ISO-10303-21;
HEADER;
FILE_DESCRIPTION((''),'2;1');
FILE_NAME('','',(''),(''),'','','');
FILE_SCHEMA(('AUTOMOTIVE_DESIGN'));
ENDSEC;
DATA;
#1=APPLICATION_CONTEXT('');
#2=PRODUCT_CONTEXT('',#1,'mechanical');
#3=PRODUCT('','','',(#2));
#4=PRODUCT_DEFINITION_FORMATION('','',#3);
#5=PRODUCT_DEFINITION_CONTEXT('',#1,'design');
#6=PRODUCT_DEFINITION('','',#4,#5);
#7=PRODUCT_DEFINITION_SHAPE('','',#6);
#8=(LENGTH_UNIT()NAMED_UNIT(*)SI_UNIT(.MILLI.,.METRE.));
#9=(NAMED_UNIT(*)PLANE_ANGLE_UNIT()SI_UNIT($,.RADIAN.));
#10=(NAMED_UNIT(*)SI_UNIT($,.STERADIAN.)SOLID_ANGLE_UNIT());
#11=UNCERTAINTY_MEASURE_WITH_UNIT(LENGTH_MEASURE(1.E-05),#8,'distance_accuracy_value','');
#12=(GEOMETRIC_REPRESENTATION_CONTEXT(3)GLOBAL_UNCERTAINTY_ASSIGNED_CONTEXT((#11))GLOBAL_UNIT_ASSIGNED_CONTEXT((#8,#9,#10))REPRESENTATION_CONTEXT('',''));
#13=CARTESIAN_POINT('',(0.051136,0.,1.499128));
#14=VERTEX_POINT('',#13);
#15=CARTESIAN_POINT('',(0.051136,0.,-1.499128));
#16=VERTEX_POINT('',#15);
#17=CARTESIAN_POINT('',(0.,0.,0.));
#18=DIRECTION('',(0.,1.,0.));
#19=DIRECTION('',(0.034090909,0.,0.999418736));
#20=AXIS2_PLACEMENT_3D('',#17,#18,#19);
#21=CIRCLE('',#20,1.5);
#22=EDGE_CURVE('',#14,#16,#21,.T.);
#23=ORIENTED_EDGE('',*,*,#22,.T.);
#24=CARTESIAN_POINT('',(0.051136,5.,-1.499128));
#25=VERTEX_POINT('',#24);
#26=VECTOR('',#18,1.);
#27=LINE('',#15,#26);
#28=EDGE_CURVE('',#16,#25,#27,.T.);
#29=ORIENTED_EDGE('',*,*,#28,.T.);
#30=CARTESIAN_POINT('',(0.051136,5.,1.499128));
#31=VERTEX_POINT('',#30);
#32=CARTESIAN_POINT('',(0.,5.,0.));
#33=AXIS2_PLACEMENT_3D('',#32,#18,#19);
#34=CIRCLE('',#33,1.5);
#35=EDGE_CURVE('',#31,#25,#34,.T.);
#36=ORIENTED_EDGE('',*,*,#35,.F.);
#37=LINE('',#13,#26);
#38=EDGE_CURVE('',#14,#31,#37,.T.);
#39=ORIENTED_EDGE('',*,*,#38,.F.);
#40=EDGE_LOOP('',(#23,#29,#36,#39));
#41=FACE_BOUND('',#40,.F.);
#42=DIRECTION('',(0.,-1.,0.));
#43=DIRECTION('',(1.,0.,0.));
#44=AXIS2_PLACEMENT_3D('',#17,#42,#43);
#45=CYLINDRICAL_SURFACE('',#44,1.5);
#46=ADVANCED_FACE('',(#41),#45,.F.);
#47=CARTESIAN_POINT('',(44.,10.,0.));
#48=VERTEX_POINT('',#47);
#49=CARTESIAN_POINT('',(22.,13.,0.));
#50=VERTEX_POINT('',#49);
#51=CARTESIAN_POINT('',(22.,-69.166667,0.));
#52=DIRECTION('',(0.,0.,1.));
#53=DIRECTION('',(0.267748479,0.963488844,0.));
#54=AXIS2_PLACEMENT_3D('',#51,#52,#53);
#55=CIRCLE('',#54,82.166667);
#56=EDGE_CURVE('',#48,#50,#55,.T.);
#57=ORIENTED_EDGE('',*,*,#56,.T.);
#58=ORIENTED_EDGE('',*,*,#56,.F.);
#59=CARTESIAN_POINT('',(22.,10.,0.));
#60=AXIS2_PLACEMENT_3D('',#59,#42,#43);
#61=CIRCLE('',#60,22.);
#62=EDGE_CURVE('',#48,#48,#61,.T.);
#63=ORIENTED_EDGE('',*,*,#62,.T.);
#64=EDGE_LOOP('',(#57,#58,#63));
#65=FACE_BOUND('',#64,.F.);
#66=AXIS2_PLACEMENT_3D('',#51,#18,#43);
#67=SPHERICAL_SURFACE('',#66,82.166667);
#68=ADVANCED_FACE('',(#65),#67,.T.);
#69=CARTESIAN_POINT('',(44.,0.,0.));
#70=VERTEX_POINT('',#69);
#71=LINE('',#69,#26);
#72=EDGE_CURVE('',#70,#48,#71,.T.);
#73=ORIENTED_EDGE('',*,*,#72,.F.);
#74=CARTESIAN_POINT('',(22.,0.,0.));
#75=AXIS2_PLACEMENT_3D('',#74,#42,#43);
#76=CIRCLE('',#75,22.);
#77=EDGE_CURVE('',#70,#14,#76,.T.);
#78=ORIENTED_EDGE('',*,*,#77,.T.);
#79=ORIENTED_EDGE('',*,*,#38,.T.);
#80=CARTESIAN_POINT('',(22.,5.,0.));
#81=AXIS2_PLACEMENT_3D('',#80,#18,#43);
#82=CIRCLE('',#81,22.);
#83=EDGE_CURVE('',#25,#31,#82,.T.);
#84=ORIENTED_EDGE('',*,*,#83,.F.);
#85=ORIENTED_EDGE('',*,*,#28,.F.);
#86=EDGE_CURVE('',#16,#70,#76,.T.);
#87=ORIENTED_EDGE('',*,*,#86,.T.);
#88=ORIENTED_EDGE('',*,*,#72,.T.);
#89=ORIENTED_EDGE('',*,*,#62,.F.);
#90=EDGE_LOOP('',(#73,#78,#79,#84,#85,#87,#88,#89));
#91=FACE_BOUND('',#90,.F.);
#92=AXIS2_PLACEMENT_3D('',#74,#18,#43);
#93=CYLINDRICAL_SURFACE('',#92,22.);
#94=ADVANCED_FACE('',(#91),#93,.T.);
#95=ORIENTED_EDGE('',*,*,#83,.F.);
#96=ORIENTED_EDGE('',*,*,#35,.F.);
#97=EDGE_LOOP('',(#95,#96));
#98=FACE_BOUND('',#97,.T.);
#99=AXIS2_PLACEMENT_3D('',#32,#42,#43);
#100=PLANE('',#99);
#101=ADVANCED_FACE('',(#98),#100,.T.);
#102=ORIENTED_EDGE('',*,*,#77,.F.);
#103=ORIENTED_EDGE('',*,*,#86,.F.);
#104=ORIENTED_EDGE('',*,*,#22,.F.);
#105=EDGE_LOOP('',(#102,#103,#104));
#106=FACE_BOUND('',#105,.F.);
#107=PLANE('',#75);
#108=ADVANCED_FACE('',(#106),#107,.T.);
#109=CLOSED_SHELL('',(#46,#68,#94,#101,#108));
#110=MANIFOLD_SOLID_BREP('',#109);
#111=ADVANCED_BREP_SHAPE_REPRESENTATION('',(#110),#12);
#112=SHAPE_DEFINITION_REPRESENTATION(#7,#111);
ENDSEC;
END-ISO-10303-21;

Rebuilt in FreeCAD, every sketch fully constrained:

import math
import FreeCAD as App
import Part
import Sketcher
from FreeCAD import Vector

doc = App.newDocument("Part")
body = doc.addObject("PartDesign::Body", "Body")

# Sketch on XY plane
sketch1 = body.newObject("Sketcher::SketchObject", "Sketch")
sketch1.AttachmentSupport = (doc.getObject("XY_Plane"), [""])
sketch1.MapMode = "FlatFace"
sketch1.addGeometry(Part.LineSegment(Vector(0, 0, 0), Vector(22, 0, 0)), False)
sketch1.addGeometry(Part.LineSegment(Vector(22, 0, 0), Vector(22, 13, 0)), False)
sketch1.addGeometry(Part.ArcOfCircle(Part.Circle(Vector(22, -69, 0), Vector(0, 0, 1), 82), math.radians(90), math.radians(105.53)), False)
sketch1.addGeometry(Part.LineSegment(Vector(0, 10, 0), Vector(0, 0, 0)), False)
sketch1.addGeometry(Part.LineSegment(Vector(22, 13, 0), Vector(22, -69, 0)), True)  # axis
sketch1.addConstraint(Sketcher.Constraint("Coincident", 0, 2, 1, 1))
sketch1.addConstraint(Sketcher.Constraint("Coincident", 1, 2, 2, 1))
sketch1.addConstraint(Sketcher.Constraint("Coincident", 2, 2, 3, 1))
sketch1.addConstraint(Sketcher.Constraint("Coincident", 3, 2, 0, 1))
sketch1.addConstraint(Sketcher.Constraint("Horizontal", 0))
sketch1.addConstraint(Sketcher.Constraint("Vertical", 1))
sketch1.addConstraint(Sketcher.Constraint("Vertical", 3))
sketch1.addConstraint(Sketcher.Constraint("Vertical", 4))
sketch1.addConstraint(Sketcher.Constraint("Coincident", 3, 2, -1, 1))
sketch1.addConstraint(Sketcher.Constraint("Coincident", 4, 1, 1, 2))
sketch1.addConstraint(Sketcher.Constraint("Coincident", 4, 2, 2, 3))
sketch1.addConstraint(Sketcher.Constraint("DistanceX", 0, 1, 0, 2, 22.0))
sketch1.addConstraint(Sketcher.Constraint("DistanceY", 1, 1, 1, 2, 13.0))
sketch1.addConstraint(Sketcher.Constraint("DistanceY", 3, 2, 3, 1, 10.0))
revolution = body.newObject("PartDesign::Revolution", "Revolution")
revolution.Profile = sketch1
revolution.ReferenceAxis = (sketch1, ["Axis0"])
revolution.Angle = 360

# Sketch on XZ plane
sketch2 = body.newObject("Sketcher::SketchObject", "Sketch001")
sketch2.AttachmentSupport = (doc.getObject("XZ_Plane"), [""])
sketch2.MapMode = "FlatFace"
sketch2.addGeometry(Part.Circle(Vector(0, 0, 0), Vector(0, 0, 1), 1.5), False)
sketch2.addConstraint(Sketcher.Constraint("Coincident", 0, 3, -1, 1))
sketch2.addConstraint(Sketcher.Constraint("Diameter", 0, 3.0))
pocket1 = body.newObject("PartDesign::Pocket", "Pocket")
pocket1.Profile = sketch2
pocket1.Length = 5

doc.recompute()
